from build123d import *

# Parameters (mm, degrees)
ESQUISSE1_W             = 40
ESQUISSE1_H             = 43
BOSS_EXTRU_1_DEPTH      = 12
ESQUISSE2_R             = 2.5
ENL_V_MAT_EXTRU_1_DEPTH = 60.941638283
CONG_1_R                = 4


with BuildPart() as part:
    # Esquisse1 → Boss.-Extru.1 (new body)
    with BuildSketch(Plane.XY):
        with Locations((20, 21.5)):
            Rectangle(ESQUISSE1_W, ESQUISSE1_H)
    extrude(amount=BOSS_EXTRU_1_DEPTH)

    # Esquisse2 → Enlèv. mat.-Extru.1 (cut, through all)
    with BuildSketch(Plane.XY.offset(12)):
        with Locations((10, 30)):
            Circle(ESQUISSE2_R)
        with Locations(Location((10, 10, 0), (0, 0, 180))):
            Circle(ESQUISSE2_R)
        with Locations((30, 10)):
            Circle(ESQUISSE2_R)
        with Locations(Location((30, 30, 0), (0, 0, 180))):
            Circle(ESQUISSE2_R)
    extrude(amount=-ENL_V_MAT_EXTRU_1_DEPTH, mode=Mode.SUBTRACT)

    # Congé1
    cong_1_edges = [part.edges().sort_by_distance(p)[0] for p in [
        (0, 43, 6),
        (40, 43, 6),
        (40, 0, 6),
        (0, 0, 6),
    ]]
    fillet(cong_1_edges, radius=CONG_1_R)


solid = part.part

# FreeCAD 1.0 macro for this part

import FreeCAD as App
import Part
import Sketcher
Q = App.Units.Quantity


def edges_at(feature, points):
    """Names of the edges that pass closest to the given points."""
    edges = feature.Shape.Edges
    near = lambda p: min(range(len(edges)), key=lambda i: edges[i].distToShape(Part.Vertex(*p))[0])
    return sorted({f"Edge{near(p) + 1}" for p in points})

doc = App.newDocument("Part")
body = doc.addObject("PartDesign::Body", "Body")

sketch1 = doc.addObject("Sketcher::SketchObject", "Sketch")
body.addObject(sketch1)
sketch1.AttachmentSupport = (doc.XY_Plane, [""])
sketch1.MapMode = "FlatFace"
sketch1.addGeometry([
    Part.LineSegment(App.Vector(0, 43, 0), App.Vector(0, 0, 0)),
    Part.LineSegment(App.Vector(0, 0, 0), App.Vector(40, 0, 0)),
    Part.LineSegment(App.Vector(40, 0, 0), App.Vector(40, 43, 0)),
    Part.LineSegment(App.Vector(40, 43, 0), App.Vector(0, 43, 0)),
], False)
sketch1.addConstraint([
    Sketcher.Constraint("Coincident", 0, 2, 1, 1),
    Sketcher.Constraint("Coincident", 1, 2, 2, 1),
    Sketcher.Constraint("Coincident", 2, 2, 3, 1),
    Sketcher.Constraint("Coincident", 3, 2, 0, 1),
    Sketcher.Constraint("Vertical", 0),
    Sketcher.Constraint("Horizontal", 1),
    Sketcher.Constraint("Vertical", 2),
    Sketcher.Constraint("Horizontal", 3),
    Sketcher.Constraint("Coincident", 0, 2, -1, 1),
    Sketcher.Constraint("DistanceX", 1, 1, 1, 2, Q("40 mm")),
    Sketcher.Constraint("DistanceY", 0, 2, 0, 1, Q("43 mm")),
])
pad1 = doc.addObject("PartDesign::Pad", "Pad")
body.addObject(pad1)
pad1.Profile = sketch1
pad1.Length = 12

sketch2 = doc.addObject("Sketcher::SketchObject", "Sketch001")
body.addObject(sketch2)
sketch2.AttachmentSupport = (doc.XY_Plane, [""])
sketch2.MapMode = "FlatFace"
sketch2.AttachmentOffset = App.Placement(App.Vector(0, 0, 12), App.Rotation())
sketch2.addGeometry([
    Part.Circle(App.Vector(10, 30, 0), App.Vector(0, 0, 1), 2.5),
    Part.Circle(App.Vector(10, 10, 0), App.Vector(0, 0, 1), 2.5),
    Part.Circle(App.Vector(30, 10, 0), App.Vector(0, 0, 1), 2.5),
    Part.Circle(App.Vector(30, 30, 0), App.Vector(0, 0, 1), 2.5),
], False)
sketch2.addConstraint([
    Sketcher.Constraint("Equal", 0, 1),
    Sketcher.Constraint("Equal", 1, 2),
    Sketcher.Constraint("Equal", 2, 3),
    Sketcher.Constraint("Horizontal", 1, 3, 2, 3),
    Sketcher.Constraint("Horizontal", 0, 3, 3, 3),
    Sketcher.Constraint("Vertical", 0, 3, 1, 3),
    Sketcher.Constraint("Vertical", 2, 3, 3, 3),
    Sketcher.Constraint("Diameter", 0, Q("5 mm")),
    Sketcher.Constraint("DistanceX", -1, 1, 0, 3, Q("10 mm")),
    Sketcher.Constraint("DistanceY", -1, 1, 0, 3, Q("30 mm")),
    Sketcher.Constraint("DistanceY", -1, 1, 1, 3, Q("10 mm")),
    Sketcher.Constraint("DistanceX", -1, 1, 2, 3, Q("30 mm")),
])
pocket1 = doc.addObject("PartDesign::Pocket", "Pocket")
body.addObject(pocket1)
pocket1.Profile = sketch2
pocket1.Type = "ThroughAll"
doc.recompute()

fillet = doc.addObject("PartDesign::Fillet", "Fillet")
body.addObject(fillet)
fillet.Base = (pocket1, edges_at(pocket1, [
    (0, 43, 6),
    (40, 43, 6),
    (40, 0, 6),
    (0, 0, 6),
]))
fillet.Radius = 4

doc.recompute()
